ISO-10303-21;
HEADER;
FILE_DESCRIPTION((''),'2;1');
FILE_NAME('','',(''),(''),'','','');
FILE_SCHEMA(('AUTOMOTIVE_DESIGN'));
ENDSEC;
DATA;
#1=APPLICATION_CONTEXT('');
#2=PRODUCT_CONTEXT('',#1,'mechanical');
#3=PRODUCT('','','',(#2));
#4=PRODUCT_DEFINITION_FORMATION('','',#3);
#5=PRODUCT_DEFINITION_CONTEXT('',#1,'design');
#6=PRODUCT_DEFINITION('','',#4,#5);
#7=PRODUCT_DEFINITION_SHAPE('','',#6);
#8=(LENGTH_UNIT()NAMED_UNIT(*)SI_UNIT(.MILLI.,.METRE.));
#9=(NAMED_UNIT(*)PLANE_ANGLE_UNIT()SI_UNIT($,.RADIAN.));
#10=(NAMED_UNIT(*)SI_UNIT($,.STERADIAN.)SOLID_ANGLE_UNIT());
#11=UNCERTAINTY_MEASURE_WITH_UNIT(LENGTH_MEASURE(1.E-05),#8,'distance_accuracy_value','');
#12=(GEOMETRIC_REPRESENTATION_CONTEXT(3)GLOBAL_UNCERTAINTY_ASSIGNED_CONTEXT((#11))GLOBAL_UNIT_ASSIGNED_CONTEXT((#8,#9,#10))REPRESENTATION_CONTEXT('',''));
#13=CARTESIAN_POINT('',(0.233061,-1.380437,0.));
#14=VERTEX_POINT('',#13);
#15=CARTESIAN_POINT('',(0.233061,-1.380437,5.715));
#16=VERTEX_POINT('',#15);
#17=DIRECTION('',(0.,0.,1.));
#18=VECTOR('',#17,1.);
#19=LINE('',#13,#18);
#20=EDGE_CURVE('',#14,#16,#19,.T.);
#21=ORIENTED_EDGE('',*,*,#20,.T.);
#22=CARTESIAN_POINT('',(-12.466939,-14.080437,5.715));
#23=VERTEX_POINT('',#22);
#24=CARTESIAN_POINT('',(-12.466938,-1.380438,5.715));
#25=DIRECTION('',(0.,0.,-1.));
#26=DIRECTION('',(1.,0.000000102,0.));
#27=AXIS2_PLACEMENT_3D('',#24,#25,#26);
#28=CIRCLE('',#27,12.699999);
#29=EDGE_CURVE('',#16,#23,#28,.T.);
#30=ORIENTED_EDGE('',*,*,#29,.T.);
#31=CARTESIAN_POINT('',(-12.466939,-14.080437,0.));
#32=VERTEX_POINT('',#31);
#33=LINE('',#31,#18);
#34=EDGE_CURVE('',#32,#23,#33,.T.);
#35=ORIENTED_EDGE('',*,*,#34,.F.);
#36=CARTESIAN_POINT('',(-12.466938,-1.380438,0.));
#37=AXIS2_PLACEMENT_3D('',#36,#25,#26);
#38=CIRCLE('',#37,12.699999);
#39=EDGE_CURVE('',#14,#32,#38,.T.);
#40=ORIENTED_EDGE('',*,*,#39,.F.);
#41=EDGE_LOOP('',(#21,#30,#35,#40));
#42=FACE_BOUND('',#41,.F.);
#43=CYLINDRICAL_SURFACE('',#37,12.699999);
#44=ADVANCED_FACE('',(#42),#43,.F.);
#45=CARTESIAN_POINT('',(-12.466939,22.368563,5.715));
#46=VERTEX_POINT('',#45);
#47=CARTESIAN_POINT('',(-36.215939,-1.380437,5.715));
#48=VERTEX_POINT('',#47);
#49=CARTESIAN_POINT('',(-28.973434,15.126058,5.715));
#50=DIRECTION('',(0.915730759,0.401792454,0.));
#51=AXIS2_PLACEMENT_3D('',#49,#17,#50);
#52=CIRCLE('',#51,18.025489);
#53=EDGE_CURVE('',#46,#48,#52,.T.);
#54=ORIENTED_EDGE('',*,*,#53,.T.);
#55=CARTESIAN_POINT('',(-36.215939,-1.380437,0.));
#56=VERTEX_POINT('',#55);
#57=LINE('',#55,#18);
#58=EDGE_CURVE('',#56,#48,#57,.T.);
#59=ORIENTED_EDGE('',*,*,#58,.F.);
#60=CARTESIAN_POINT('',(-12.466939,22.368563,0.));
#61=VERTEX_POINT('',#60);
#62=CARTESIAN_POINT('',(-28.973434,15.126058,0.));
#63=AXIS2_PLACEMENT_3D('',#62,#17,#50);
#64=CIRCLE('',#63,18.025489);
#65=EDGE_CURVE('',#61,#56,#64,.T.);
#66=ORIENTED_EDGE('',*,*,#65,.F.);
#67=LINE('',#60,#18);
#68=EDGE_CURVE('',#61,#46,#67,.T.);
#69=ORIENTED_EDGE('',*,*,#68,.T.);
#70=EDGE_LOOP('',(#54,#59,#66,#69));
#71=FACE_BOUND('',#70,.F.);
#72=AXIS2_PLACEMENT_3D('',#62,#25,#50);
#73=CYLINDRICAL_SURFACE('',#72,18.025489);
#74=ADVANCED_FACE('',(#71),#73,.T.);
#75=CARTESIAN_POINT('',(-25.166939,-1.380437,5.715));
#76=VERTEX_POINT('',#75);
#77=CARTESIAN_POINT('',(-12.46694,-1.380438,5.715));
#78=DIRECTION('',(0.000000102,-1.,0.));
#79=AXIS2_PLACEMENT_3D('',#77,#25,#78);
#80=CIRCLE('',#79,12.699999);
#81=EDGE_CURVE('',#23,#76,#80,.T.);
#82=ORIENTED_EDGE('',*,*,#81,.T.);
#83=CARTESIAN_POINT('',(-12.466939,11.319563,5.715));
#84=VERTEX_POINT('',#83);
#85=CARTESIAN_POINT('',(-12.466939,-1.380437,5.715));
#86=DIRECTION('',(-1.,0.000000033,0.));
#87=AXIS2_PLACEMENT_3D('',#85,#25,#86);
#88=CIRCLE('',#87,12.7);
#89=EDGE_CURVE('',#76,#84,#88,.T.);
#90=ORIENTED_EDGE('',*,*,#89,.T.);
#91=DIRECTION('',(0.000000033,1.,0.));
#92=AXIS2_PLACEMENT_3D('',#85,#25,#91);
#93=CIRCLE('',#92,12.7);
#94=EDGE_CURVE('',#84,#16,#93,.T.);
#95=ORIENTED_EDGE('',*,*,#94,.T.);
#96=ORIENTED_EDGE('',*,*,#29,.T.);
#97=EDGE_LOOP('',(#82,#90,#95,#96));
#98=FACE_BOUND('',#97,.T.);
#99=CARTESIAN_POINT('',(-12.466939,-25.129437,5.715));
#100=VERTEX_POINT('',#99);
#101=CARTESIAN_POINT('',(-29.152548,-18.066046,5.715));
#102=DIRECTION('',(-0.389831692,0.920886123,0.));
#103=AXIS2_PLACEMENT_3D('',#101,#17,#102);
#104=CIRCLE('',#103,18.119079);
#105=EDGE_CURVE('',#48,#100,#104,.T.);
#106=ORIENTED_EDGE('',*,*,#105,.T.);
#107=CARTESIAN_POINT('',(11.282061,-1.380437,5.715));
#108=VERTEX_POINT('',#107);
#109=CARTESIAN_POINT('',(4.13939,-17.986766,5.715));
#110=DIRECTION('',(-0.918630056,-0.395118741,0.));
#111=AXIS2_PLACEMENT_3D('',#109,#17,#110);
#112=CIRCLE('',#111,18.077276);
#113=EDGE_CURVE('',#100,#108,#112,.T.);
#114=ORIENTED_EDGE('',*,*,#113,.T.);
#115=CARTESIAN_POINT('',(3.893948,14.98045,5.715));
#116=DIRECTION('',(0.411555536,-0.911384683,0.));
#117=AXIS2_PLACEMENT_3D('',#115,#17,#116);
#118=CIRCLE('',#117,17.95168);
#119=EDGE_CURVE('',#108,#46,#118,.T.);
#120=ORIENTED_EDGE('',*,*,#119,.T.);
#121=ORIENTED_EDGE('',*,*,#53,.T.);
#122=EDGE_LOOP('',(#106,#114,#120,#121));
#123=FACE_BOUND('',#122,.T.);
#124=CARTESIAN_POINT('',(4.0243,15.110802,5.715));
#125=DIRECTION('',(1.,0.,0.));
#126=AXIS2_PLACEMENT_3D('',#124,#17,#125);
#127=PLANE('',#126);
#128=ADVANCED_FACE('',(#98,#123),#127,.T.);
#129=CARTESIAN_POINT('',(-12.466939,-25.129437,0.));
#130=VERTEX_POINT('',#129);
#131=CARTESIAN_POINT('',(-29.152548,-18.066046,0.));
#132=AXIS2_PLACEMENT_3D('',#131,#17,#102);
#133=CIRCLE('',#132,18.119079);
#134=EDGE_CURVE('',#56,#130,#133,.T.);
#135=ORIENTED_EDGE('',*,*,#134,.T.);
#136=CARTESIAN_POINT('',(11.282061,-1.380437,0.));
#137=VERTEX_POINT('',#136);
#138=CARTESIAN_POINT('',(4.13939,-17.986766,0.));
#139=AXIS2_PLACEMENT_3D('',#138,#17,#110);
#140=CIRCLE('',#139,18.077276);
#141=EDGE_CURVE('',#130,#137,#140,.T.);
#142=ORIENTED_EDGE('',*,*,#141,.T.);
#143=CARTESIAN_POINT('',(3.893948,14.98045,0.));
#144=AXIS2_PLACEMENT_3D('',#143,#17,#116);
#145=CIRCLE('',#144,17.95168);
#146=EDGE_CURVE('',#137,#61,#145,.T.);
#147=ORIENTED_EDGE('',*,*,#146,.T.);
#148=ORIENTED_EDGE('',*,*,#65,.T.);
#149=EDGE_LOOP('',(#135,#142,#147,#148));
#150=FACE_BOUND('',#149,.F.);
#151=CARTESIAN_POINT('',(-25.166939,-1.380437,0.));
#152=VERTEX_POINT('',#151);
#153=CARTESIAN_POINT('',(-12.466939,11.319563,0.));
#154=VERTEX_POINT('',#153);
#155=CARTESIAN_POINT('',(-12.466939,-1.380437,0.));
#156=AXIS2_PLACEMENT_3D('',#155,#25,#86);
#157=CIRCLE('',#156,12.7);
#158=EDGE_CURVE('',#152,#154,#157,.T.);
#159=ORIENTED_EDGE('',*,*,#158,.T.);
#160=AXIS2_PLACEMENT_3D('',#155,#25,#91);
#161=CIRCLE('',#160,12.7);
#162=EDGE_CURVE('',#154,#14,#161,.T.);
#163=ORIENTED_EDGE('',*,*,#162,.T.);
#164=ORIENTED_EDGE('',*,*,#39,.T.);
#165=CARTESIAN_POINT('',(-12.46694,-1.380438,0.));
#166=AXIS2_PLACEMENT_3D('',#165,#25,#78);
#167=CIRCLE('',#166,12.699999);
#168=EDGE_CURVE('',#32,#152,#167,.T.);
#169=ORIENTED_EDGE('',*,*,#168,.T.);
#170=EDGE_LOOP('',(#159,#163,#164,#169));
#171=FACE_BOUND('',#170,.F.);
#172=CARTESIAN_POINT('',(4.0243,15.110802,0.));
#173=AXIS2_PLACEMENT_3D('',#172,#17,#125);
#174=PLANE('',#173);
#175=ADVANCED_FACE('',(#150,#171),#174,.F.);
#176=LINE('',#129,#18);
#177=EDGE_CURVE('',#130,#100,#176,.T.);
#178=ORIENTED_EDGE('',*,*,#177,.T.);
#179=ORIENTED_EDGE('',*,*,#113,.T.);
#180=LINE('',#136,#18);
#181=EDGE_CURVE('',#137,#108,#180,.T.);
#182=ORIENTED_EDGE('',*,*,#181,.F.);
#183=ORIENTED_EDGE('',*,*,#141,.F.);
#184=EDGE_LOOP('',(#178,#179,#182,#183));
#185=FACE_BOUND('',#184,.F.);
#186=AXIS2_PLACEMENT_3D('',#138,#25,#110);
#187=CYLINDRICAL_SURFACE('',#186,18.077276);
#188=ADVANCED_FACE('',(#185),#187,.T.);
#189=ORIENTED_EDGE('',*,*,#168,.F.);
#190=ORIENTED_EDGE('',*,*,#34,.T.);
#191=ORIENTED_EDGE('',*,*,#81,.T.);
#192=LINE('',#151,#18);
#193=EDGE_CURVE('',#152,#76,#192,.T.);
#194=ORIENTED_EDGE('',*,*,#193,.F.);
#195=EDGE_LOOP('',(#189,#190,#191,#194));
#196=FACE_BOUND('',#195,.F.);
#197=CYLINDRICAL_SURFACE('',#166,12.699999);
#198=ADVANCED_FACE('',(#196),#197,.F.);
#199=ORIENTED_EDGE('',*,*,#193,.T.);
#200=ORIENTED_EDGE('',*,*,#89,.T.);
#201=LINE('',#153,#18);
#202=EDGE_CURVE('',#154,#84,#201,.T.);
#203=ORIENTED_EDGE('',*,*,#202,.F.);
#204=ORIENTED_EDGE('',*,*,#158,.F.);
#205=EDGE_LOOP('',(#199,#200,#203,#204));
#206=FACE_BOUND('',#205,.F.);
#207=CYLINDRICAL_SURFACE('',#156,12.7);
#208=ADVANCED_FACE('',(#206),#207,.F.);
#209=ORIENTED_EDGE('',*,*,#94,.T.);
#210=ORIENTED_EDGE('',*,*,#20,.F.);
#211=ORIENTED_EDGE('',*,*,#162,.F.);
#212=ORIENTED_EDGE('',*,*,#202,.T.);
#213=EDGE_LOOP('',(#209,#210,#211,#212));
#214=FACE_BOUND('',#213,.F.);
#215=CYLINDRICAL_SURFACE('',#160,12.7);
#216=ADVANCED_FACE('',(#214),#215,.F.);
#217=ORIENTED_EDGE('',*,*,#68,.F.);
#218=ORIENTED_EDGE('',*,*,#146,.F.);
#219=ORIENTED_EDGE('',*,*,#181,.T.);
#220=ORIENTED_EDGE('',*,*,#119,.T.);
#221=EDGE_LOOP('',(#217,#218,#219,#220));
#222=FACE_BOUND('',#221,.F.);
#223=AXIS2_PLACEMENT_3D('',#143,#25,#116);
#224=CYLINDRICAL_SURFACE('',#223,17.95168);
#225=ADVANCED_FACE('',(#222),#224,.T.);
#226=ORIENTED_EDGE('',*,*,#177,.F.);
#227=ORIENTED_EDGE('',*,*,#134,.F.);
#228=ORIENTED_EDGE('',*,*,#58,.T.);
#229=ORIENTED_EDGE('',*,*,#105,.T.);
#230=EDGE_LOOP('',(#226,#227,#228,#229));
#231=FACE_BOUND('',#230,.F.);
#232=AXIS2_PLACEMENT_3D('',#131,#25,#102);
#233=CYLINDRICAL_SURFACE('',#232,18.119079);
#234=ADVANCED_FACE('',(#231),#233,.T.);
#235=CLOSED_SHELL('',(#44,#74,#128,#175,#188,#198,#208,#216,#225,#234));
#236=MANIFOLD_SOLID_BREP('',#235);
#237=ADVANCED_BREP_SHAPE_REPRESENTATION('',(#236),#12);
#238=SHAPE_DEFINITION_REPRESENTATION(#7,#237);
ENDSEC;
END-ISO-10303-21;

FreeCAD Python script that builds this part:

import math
import FreeCAD as App
import Part
import Sketcher

V = App.Vector
Q = App.Units.Quantity

doc = App.newDocument("Part")
body = doc.addObject("PartDesign::Body", "Body")

sketch1 = body.newObject("Sketcher::SketchObject", "Sketch")
sketch1.AttachmentSupport = (doc.getObject("XY_Plane"), [""])
sketch1.MapMode = "FlatFace"
sketch1.addGeometry([
    Part.ArcOfCircle(Part.Circle(V(4, -18, 0), V(0, 0, 1), 18), math.radians(-157), math.radians(67)),
    Part.ArcOfCircle(Part.Circle(V(4, 15, 0), V(0, 0, 1), 18), math.radians(-66), math.radians(156)),
    Part.ArcOfCircle(Part.Circle(V(-29, 15, 0), V(0, 0, 1), 18), math.radians(24), math.radians(246)),
    Part.ArcOfCircle(Part.Circle(V(-29, -18, 0), V(0, 0, 1), 18), math.radians(113), math.radians(337)),
    Part.ArcOfCircle(Part.Circle(V(-12, -1, 0), V(0, 0, 1), 13), math.radians(0), math.radians(90)),
    Part.ArcOfCircle(Part.Circle(V(-12, -1, 0), V(0, 0, 1), 13), math.radians(-90), math.radians(0)),
    Part.ArcOfCircle(Part.Circle(V(-12, -1, 0), V(0, 0, 1), 13), math.radians(180), math.radians(270)),
    Part.ArcOfCircle(Part.Circle(V(-12, -1, 0), V(0, 0, 1), 13), math.radians(90), math.radians(180)),
], False)
sketch1.addConstraint([
    Sketcher.Constraint("Coincident", 0, 2, 1, 1),
    Sketcher.Constraint("Coincident", 1, 2, 2, 1),
    Sketcher.Constraint("Coincident", 2, 2, 3, 1),
    Sketcher.Constraint("Coincident", 3, 2, 0, 1),
    Sketcher.Constraint("Tangent", 4, 1, 5, 2),
    Sketcher.Constraint("Tangent", 5, 1, 6, 2),
    Sketcher.Constraint("Tangent", 6, 1, 7, 2),
    Sketcher.Constraint("Tangent", 7, 1, 4, 2),
    Sketcher.Constraint("Equal", 4, 5),
    Sketcher.Constraint("Horizontal", 7, 3, 0, 2),
    Sketcher.Constraint("Horizontal", 0, 2, 2, 2),
    Sketcher.Constraint("Horizontal", 2, 2, 4, 1),
    Sketcher.Constraint("Horizontal", 4, 1, 6, 1),
    Sketcher.Constraint("Vertical", 7, 3, 1, 2),
    Sketcher.Constraint("Vertical", 1, 2, 3, 2),
    Sketcher.Constraint("Vertical", 3, 2, 5, 1),
    Sketcher.Constraint("Vertical", 5, 1, 7, 1),
    Sketcher.Constraint("Radius", 4, Q("0.5 in")),
    Sketcher.Constraint("Radius", 1, 17.95168),
    Sketcher.Constraint("Radius", 2, 18.025489),
    Sketcher.Constraint("Radius", 3, 18.119079),
    Sketcher.Constraint("DistanceX", 5, 3, 0, 2, Q("0.9349999 in")),
    Sketcher.Constraint("DistanceY", 4, 3, 1, 2, Q("0.935 in")),
    Sketcher.Constraint("DistanceX", 2, 2, 6, 3, Q("0.9349999 in")),
    Sketcher.Constraint("DistanceY", 3, 2, 5, 3, Q("0.9349999 in")),
    Sketcher.Constraint("Radius", 0, 18.077276),
    Sketcher.Constraint("DistanceX", -1, 1, 0, 3, 4.13939),
    Sketcher.Constraint("DistanceY", -1, 1, 1, 3, 14.98045),
])
pad1 = body.newObject("PartDesign::Pad", "Pad")
pad1.Profile = sketch1
pad1.Length = Q("0.225 in")

doc.recompute()
